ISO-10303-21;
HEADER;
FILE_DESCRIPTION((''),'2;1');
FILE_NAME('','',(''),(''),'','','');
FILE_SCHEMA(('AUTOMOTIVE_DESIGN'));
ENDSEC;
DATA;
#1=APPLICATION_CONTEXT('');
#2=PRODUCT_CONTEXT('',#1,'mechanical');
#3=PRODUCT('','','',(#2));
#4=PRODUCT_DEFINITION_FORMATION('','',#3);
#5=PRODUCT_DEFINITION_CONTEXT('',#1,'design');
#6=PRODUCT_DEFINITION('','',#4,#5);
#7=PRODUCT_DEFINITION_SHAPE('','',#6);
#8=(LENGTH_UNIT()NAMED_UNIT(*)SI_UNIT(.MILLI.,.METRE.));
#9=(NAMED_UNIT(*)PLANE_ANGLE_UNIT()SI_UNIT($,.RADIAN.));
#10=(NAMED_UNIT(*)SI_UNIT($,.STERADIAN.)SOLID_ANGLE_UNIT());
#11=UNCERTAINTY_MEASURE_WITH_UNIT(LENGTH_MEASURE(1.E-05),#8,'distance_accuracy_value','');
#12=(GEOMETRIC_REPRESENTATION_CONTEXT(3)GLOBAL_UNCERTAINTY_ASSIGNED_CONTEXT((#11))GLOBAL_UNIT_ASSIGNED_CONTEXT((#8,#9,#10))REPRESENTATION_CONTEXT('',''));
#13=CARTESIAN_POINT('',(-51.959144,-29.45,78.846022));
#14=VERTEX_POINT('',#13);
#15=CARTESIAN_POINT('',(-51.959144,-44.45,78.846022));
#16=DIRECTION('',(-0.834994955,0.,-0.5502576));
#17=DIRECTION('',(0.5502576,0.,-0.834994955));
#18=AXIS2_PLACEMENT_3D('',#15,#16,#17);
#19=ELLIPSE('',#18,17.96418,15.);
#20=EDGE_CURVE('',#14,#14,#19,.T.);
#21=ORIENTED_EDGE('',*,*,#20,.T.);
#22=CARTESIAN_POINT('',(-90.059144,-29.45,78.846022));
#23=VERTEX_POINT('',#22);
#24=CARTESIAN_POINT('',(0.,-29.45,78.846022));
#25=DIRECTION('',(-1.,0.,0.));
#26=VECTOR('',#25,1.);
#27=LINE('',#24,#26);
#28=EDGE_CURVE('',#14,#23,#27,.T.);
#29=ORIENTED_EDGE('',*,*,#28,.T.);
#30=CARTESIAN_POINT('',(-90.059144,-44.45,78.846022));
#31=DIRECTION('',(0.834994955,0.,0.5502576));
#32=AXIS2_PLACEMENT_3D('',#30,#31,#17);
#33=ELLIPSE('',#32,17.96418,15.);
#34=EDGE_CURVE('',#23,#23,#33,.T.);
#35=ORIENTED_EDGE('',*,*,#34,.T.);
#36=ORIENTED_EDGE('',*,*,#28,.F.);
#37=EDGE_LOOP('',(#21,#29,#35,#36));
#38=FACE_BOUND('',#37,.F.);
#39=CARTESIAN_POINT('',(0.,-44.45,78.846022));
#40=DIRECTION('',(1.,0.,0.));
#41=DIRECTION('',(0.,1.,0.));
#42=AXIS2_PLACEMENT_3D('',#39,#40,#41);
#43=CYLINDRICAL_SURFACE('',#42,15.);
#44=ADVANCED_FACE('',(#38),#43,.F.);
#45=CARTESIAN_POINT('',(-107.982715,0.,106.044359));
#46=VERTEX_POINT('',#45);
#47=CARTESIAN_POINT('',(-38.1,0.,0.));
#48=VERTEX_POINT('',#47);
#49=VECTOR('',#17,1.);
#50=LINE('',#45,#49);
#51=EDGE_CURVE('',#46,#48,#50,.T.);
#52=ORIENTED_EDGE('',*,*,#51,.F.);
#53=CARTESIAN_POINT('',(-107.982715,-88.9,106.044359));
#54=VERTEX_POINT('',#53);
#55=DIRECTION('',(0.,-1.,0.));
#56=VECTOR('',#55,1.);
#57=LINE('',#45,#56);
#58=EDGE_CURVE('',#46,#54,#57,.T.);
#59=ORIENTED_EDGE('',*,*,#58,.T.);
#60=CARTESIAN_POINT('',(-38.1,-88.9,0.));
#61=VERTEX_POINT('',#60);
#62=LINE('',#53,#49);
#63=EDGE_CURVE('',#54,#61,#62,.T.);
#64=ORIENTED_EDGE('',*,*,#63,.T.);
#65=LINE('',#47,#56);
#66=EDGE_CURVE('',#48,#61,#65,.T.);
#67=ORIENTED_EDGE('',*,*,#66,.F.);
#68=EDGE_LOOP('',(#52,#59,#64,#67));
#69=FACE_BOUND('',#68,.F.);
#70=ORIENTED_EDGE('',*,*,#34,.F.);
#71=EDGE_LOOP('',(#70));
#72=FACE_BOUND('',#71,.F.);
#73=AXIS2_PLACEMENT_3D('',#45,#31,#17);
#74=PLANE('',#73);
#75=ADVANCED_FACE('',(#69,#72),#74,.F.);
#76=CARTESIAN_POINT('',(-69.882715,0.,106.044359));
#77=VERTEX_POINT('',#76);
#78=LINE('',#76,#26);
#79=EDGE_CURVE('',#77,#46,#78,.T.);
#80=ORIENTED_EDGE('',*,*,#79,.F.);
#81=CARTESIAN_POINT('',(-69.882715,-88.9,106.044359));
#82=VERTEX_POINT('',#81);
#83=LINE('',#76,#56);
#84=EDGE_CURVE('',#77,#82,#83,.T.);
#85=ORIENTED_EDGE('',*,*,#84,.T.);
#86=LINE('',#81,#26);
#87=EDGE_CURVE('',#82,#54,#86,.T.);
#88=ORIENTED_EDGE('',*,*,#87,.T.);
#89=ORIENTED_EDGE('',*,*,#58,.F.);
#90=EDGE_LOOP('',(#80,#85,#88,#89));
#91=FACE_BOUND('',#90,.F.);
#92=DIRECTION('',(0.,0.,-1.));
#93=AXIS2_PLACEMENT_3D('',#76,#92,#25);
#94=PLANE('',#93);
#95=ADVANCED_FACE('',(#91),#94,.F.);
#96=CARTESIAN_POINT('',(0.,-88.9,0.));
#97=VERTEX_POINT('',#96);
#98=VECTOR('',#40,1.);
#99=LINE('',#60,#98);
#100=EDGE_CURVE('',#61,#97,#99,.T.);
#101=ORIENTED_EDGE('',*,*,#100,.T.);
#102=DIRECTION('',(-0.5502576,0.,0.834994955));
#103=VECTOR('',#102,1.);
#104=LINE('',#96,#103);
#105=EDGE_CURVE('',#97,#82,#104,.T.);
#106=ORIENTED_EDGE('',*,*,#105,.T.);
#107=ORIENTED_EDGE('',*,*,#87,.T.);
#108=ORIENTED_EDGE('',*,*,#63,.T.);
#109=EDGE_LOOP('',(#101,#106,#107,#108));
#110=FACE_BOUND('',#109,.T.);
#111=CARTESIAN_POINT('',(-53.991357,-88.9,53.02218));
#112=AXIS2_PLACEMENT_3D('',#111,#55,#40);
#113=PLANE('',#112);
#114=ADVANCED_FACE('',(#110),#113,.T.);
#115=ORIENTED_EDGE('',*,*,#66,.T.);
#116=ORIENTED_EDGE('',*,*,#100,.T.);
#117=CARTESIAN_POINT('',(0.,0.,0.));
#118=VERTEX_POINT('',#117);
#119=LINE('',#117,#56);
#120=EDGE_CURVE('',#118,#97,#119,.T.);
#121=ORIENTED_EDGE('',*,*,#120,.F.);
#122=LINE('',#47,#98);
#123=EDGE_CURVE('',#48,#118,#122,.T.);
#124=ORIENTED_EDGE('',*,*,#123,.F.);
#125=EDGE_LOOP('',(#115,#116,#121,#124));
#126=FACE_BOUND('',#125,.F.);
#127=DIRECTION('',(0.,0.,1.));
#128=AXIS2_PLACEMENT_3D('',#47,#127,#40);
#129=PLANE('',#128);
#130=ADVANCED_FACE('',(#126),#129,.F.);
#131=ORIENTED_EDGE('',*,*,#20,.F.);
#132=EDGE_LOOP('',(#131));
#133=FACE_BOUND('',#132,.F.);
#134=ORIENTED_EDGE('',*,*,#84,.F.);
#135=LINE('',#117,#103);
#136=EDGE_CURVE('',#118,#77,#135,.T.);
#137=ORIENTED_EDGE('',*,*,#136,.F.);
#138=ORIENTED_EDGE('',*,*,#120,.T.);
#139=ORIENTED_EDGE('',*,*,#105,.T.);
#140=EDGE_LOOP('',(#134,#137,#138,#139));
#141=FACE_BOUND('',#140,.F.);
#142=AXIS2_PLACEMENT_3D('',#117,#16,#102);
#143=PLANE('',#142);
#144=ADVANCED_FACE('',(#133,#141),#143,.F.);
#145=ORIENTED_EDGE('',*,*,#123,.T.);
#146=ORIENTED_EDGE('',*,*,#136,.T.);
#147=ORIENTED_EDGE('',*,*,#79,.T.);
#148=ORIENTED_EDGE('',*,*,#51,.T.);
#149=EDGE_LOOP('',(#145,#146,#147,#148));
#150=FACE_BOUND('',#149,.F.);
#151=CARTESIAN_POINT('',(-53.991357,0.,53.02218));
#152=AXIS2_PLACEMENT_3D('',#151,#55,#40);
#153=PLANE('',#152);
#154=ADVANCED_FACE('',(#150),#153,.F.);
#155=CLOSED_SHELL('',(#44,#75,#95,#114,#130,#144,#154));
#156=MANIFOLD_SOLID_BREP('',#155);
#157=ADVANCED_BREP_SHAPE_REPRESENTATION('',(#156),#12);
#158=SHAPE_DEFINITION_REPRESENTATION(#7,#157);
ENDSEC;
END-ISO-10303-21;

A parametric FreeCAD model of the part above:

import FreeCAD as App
import Part
import Sketcher
Q = App.Units.Quantity


def add_polygon(sketch, points):
    """Adds a closed chain of lines whose ends are joined by coincident constraints."""
    first, n = sketch.GeometryCount, len(points)
    for a, b in zip(points, points[1:] + points[:1]):
        sketch.addGeometry(Part.LineSegment(App.Vector(*a, 0), App.Vector(*b, 0)), False)
    for i in range(n):
        sketch.addConstraint(Sketcher.Constraint("Coincident", first + i, 2, first + (i + 1) % n, 1))

doc = App.newDocument("Part")
body = doc.addObject("PartDesign::Body", "Body")

# Sketch on XZ plane
sketch1 = doc.addObject("Sketcher::SketchObject", "Sketch")
body.addObject(sketch1)
sketch1.AttachmentSupport = (doc.XZ_Plane, [""])
sketch1.MapMode = "FlatFace"
add_polygon(sketch1, [(-38.1, 0), (0, 0), (-69.882715, 106.044359), (-107.982715, 106.044359)])  # lines 0-3
sketch1.addConstraint(Sketcher.Constraint("Horizontal", 0))
sketch1.addConstraint(Sketcher.Constraint("Horizontal", 2))
sketch1.addConstraint(Sketcher.Constraint("Coincident", 0, 2, -1, 1))
sketch1.addConstraint(Sketcher.Constraint("Parallel", 1, 3))
sketch1.addConstraint(Sketcher.Constraint("Distance", 1, Q("5 in")))
sketch1.addConstraint(Sketcher.Constraint("DistanceX", 0, 1, 0, 2, Q("1.5 in")))
sketch1.addConstraint(Sketcher.Constraint("DistanceY", -1, 1, 1, 2, 106.044359))
pad1 = doc.addObject("PartDesign::Pad", "Pad")
body.addObject(pad1)
pad1.Profile = sketch1
pad1.Length = Q("3.5 in")

# Sketch on YZ plane
sketch2 = doc.addObject("Sketcher::SketchObject", "Sketch001")
body.addObject(sketch2)
sketch2.AttachmentSupport = (doc.YZ_Plane, [""])
sketch2.MapMode = "FlatFace"
sketch2.addGeometry(Part.Circle(App.Vector(-44.45, 78.846022, 0), App.Vector(0, 0, 1), 15), False)
sketch2.addConstraint(Sketcher.Constraint("Diameter", 0, 30.0))
sketch2.addConstraint(Sketcher.Constraint("DistanceX", 0, 3, -1, 1, Q("1.75 in")))
sketch2.addConstraint(Sketcher.Constraint("DistanceY", -1, 1, 0, 3, 78.846022))
pocket1 = doc.addObject("PartDesign::Pocket", "Pocket")
body.addObject(pocket1)
pocket1.Profile = sketch2
pocket1.Type = "ThroughAll"

doc.recompute()
